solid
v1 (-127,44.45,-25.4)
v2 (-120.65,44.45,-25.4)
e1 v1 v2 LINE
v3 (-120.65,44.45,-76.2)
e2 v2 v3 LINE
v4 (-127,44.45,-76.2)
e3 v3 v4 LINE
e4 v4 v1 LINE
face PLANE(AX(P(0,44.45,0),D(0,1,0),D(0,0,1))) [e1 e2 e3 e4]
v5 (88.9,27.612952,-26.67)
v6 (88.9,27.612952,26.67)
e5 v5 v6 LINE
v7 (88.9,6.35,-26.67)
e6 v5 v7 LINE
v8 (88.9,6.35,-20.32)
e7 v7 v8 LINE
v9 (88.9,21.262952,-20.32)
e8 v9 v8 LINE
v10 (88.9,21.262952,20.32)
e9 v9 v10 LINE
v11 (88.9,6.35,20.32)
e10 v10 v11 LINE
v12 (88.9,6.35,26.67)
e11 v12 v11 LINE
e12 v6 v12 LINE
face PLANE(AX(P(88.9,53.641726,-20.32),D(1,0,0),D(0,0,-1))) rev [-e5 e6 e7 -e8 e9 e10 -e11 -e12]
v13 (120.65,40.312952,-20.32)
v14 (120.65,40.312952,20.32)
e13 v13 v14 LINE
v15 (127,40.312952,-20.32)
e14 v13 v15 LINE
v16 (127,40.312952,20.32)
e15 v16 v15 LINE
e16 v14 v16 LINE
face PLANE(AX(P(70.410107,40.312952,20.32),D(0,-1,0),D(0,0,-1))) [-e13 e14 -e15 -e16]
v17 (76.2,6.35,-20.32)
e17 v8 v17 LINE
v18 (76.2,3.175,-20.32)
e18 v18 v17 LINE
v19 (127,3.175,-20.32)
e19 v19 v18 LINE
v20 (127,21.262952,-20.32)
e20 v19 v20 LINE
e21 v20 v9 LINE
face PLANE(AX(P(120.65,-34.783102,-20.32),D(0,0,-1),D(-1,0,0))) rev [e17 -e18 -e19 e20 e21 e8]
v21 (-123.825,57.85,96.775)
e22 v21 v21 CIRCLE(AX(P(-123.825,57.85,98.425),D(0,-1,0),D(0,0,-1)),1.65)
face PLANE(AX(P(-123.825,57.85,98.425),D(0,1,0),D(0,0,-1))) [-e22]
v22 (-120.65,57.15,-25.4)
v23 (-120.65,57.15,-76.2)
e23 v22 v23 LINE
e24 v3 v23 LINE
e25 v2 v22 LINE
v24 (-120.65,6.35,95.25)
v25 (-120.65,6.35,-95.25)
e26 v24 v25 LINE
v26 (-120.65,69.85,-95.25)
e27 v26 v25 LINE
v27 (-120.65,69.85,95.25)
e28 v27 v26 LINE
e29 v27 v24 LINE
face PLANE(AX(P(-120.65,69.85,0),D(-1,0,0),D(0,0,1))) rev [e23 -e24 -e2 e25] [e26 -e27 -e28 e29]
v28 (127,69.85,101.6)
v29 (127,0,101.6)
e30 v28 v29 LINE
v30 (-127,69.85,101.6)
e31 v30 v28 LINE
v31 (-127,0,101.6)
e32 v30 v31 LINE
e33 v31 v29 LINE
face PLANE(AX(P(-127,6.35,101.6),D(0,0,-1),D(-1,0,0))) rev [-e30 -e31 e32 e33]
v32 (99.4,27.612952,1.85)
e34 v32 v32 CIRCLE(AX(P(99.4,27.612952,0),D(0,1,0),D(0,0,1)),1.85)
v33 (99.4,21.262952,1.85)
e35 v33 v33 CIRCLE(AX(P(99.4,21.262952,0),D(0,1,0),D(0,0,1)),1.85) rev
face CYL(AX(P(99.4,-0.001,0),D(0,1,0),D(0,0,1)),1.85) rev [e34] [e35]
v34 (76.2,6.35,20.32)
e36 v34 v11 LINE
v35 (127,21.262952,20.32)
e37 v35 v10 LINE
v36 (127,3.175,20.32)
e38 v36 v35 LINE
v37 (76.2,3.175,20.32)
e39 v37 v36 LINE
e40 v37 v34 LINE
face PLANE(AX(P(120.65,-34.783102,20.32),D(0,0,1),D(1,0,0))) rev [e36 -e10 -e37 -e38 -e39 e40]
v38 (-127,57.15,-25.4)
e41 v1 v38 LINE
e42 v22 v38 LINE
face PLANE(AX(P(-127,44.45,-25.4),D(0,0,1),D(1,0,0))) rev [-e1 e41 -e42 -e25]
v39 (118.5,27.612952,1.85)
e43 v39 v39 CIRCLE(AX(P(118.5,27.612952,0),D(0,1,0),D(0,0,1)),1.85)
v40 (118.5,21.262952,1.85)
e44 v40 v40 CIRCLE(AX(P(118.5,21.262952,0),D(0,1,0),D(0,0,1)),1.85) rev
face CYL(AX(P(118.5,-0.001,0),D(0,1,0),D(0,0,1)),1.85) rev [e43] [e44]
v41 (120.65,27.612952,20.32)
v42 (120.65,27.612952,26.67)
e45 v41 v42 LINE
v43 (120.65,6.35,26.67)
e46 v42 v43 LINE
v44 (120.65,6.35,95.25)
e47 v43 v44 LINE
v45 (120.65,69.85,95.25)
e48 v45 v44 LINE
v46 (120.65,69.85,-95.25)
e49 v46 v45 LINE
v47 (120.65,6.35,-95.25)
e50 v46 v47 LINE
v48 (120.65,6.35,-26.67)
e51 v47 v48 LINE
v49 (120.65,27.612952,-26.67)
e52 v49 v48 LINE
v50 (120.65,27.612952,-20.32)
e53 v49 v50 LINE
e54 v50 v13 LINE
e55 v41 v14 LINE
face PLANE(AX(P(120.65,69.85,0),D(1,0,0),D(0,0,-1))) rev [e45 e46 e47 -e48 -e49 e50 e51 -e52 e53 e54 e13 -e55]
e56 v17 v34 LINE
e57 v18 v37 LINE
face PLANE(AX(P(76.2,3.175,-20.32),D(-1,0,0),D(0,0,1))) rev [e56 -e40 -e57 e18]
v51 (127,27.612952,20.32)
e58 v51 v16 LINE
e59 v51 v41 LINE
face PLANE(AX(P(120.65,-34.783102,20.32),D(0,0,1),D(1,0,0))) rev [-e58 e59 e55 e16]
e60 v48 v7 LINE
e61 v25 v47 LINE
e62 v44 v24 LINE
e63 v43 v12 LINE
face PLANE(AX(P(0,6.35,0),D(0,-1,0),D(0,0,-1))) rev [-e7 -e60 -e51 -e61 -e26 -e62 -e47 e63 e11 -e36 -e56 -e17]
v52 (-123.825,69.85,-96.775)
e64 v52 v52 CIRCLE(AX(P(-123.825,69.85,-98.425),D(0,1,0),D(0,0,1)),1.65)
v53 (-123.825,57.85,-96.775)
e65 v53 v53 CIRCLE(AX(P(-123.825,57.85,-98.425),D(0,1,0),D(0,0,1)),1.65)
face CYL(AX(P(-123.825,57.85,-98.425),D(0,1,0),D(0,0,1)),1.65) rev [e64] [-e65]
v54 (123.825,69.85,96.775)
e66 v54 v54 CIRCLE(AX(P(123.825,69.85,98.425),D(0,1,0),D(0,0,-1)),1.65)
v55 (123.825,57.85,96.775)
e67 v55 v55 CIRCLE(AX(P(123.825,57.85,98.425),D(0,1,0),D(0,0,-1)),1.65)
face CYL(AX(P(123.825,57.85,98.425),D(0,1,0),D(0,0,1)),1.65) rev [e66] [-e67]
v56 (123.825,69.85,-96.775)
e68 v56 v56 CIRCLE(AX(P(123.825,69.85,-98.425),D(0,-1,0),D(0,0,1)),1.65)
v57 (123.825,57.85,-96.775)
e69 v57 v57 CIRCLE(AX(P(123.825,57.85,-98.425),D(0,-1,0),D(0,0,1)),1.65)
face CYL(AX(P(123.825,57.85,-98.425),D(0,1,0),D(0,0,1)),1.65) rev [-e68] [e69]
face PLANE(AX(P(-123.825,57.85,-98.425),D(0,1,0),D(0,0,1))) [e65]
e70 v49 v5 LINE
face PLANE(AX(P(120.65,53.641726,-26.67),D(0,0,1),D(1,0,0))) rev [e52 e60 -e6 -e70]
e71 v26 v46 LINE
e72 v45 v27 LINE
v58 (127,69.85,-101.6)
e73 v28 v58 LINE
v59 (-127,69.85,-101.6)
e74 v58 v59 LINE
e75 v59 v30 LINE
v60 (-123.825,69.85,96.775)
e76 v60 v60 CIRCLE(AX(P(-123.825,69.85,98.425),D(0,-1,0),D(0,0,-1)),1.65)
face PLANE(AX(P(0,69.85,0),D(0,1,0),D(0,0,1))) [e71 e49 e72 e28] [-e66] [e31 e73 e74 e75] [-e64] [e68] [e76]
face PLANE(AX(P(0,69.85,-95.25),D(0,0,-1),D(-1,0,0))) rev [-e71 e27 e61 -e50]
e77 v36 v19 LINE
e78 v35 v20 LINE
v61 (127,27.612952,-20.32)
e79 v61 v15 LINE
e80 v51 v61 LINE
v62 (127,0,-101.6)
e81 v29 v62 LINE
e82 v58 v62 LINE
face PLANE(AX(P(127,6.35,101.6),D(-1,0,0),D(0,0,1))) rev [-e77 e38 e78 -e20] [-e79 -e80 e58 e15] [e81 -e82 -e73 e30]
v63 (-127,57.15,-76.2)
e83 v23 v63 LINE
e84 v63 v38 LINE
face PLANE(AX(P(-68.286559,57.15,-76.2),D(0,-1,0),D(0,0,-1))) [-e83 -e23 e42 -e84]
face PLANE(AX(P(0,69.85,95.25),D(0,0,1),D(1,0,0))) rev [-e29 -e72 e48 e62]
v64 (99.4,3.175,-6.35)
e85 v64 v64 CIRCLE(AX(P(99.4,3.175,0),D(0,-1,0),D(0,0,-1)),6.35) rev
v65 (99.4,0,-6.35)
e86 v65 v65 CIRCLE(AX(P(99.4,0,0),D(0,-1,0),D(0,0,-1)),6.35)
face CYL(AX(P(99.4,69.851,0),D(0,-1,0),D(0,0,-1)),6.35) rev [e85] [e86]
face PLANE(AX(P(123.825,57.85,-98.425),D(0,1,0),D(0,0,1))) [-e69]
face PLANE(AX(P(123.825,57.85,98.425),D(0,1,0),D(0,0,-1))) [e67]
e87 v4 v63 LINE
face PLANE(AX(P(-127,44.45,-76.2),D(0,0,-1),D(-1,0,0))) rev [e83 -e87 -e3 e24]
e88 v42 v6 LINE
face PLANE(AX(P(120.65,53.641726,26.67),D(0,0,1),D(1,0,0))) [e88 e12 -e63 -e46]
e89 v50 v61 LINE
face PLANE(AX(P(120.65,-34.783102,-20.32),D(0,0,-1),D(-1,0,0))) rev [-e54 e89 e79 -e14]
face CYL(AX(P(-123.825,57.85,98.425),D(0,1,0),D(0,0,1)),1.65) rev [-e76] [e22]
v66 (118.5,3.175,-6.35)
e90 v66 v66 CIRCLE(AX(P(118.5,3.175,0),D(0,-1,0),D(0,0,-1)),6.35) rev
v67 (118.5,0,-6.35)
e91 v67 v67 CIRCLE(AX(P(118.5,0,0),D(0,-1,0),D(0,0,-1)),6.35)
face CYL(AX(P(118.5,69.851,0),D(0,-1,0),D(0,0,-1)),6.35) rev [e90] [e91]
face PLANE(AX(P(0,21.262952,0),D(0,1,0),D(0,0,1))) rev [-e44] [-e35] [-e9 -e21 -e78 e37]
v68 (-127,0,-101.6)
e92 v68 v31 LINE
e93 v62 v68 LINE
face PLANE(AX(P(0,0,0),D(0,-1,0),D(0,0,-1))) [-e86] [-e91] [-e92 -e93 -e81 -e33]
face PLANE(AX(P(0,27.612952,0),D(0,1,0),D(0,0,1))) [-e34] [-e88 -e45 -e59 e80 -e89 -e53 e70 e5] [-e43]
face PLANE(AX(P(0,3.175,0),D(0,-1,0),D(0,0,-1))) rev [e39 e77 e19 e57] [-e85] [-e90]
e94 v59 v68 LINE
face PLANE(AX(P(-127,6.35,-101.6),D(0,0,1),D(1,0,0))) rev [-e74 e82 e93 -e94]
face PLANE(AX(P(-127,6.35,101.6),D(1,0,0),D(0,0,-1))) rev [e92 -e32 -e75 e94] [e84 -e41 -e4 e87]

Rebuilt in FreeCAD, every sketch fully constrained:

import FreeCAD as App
import Part
import Sketcher
Q = App.Units.Quantity

doc = App.newDocument("Part")
params = doc.addObject("Spreadsheet::Sheet", "Params")
for row, (alias, value) in enumerate([
    ("sketch1_width", "10 in"),
    ("sketch1_height", "8 in"),
    ("pad1_length", "0.25 in"),
    ("sketch2_width", "10 in"),
    ("sketch2_height", "8 in"),
    ("sketch2_width2", "9.5 in"),
    ("sketch2_height2", "7.5 in"),
    ("pad2_length", "2.5 in"),
    ("sketch3_height", "1.6 in"),
    ("sketch3_width", "0.25 in"),
    ("pocket1_length", "2.5 in"),
    ("sketch4_width", "2 in"),
    ("sketch4_height", "1.6 in"),
    ("pocket2_length", "0.125 in"),
    ("sketch5_width", "1.25 in"),
    ("sketch5_height", "0.25 in"),
    ("pad3_length", "14.912952 mm"),
    ("sketch6_width", "1.5 in"),
    ("sketch6_height", "1.05 in"),
    ("pad4_length", "0.25 in"),
    ("sketch9_height", "2 in"),
    ("sketch9_width", "0.25 in"),
    ("pocket5_length", "1 in"),
    ("sketch10_diameter", "0.5 in"),
    ("sketch11_diameter", "0.5 in"),
    ("sketch12_height", "1.6 in"),
    ("pad5_length", "0.25 in"),
    ("sketch13_height", "2 in"),
    ("sketch13_width", "0.5 in"),
    ("pad6_length", "0.25 in"),
    ("pocket8_length", "12 mm"),
    ("pocket9_length", "12 mm"),
], start=1):
    params.set(f"A{row}", alias)
    params.set(f"B{row}", "=" + value)
    params.setAlias(f"B{row}", alias)

body = doc.addObject("PartDesign::Body", "Body")

sketch1 = body.newObject("Sketcher::SketchObject", "Sketch")
sketch1.AttachmentSupport = (doc.getObject("XZ_Plane"), [""])
sketch1.MapMode = "FlatFace"
sketch1.addGeometry(Part.LineSegment(App.Vector(-127, -102, 0), App.Vector(-127, 102, 0)), False)
sketch1.addGeometry(Part.LineSegment(App.Vector(-127, 102, 0), App.Vector(127, 102, 0)), False)
sketch1.addGeometry(Part.LineSegment(App.Vector(127, 102, 0), App.Vector(127, -102, 0)), False)
sketch1.addGeometry(Part.LineSegment(App.Vector(127, -102, 0), App.Vector(-127, -102, 0)), False)
sketch1.addConstraint(Sketcher.Constraint("Coincident", 0, 2, 1, 1))
sketch1.addConstraint(Sketcher.Constraint("Coincident", 1, 2, 2, 1))
sketch1.addConstraint(Sketcher.Constraint("Coincident", 2, 2, 3, 1))
sketch1.addConstraint(Sketcher.Constraint("Coincident", 3, 2, 0, 1))
sketch1.addConstraint(Sketcher.Constraint("Vertical", 0))
sketch1.addConstraint(Sketcher.Constraint("Horizontal", 1))
sketch1.addConstraint(Sketcher.Constraint("Vertical", 2))
sketch1.addConstraint(Sketcher.Constraint("Horizontal", 3))
sketch1.addConstraint(Sketcher.Constraint("Symmetric", 0, 2, 2, 2, -1, 1))
sketch1.addConstraint(Sketcher.Constraint("DistanceX", 1, 1, 1, 2, Q("10 in")))
sketch1.addConstraint(Sketcher.Constraint("DistanceY", 0, 1, 0, 2, Q("8 in")))
sketch1.setExpression("Constraints[9]", "Params.sketch1_width")
sketch1.setExpression("Constraints[10]", "Params.sketch1_height")
pad1 = body.newObject("PartDesign::Pad", "Pad")
pad1.Profile = sketch1
pad1.setExpression("Length", "Params.pad1_length")
pad1.Reversed = True

sketch2 = body.newObject("Sketcher::SketchObject", "Sketch001")
sketch2.AttachmentSupport = (doc.getObject("XZ_Plane"), [""])
sketch2.MapMode = "FlatFace"
sketch2.AttachmentOffset = App.Placement(App.Vector(0, 0, -0.25 * 25.4), App.Rotation())
sketch2.addGeometry(Part.LineSegment(App.Vector(127, -102, 0), App.Vector(-127, -102, 0)), False)
sketch2.addGeometry(Part.LineSegment(App.Vector(-127, -102, 0), App.Vector(-127, 102, 0)), False)
sketch2.addGeometry(Part.LineSegment(App.Vector(-127, 102, 0), App.Vector(127, 102, 0)), False)
sketch2.addGeometry(Part.LineSegment(App.Vector(127, 102, 0), App.Vector(127, -102, 0)), False)
sketch2.addGeometry(Part.LineSegment(App.Vector(-121, 95, 0), App.Vector(-121, -95, 0)), False)
sketch2.addGeometry(Part.LineSegment(App.Vector(-121, -95, 0), App.Vector(121, -95, 0)), False)
sketch2.addGeometry(Part.LineSegment(App.Vector(121, -95, 0), App.Vector(121, 95, 0)), False)
sketch2.addGeometry(Part.LineSegment(App.Vector(121, 95, 0), App.Vector(-121, 95, 0)), False)
sketch2.addConstraint(Sketcher.Constraint("Coincident", 0, 2, 1, 1))
sketch2.addConstraint(Sketcher.Constraint("Coincident", 1, 2, 2, 1))
sketch2.addConstraint(Sketcher.Constraint("Coincident", 2, 2, 3, 1))
sketch2.addConstraint(Sketcher.Constraint("Coincident", 3, 2, 0, 1))
sketch2.addConstraint(Sketcher.Constraint("Coincident", 4, 2, 5, 1))
sketch2.addConstraint(Sketcher.Constraint("Coincident", 5, 2, 6, 1))
sketch2.addConstraint(Sketcher.Constraint("Coincident", 6, 2, 7, 1))
sketch2.addConstraint(Sketcher.Constraint("Coincident", 7, 2, 4, 1))
sketch2.addConstraint(Sketcher.Constraint("Horizontal", 0))
sketch2.addConstraint(Sketcher.Constraint("Vertical", 1))
sketch2.addConstraint(Sketcher.Constraint("Horizontal", 2))
sketch2.addConstraint(Sketcher.Constraint("Vertical", 3))
sketch2.addConstraint(Sketcher.Constraint("Vertical", 4))
sketch2.addConstraint(Sketcher.Constraint("Horizontal", 5))
sketch2.addConstraint(Sketcher.Constraint("Vertical", 6))
sketch2.addConstraint(Sketcher.Constraint("Horizontal", 7))
sketch2.addConstraint(Sketcher.Constraint("Symmetric", 0, 2, 2, 2, -1, 1))
sketch2.addConstraint(Sketcher.Constraint("Symmetric", 4, 2, 6, 2, -1, 1))
sketch2.addConstraint(Sketcher.Constraint("DistanceX", 0, 2, 0, 1, Q("10 in")))
sketch2.addConstraint(Sketcher.Constraint("DistanceY", 1, 1, 1, 2, Q("8 in")))
sketch2.addConstraint(Sketcher.Constraint("DistanceX", 5, 1, 5, 2, Q("9.5 in")))
sketch2.addConstraint(Sketcher.Constraint("DistanceY", 4, 2, 4, 1, Q("7.5 in")))
sketch2.setExpression("Constraints[18]", "Params.sketch2_width")
sketch2.setExpression("Constraints[19]", "Params.sketch2_height")
sketch2.setExpression("Constraints[20]", "Params.sketch2_width2")
sketch2.setExpression("Constraints[21]", "Params.sketch2_height2")
pad2 = body.newObject("PartDesign::Pad", "Pad001")
pad2.Profile = sketch2
pad2.setExpression("Length", "Params.pad2_length")
pad2.Reversed = True

sketch3 = body.newObject("Sketcher::SketchObject", "Sketch002")
sketch3.AttachmentSupport = (doc.getObject("XZ_Plane"), [""])
sketch3.MapMode = "FlatFace"
sketch3.AttachmentOffset = App.Placement(App.Vector(0, 0, -2.75 * 25.4), App.Rotation())
sketch3.addGeometry(Part.LineSegment(App.Vector(121, -20, 0), App.Vector(121, 20, 0)), False)
sketch3.addGeometry(Part.LineSegment(App.Vector(121, 20, 0), App.Vector(127, 20, 0)), False)
sketch3.addGeometry(Part.LineSegment(App.Vector(127, 20, 0), App.Vector(127, -20, 0)), False)
sketch3.addGeometry(Part.LineSegment(App.Vector(127, -20, 0), App.Vector(121, -20, 0)), False)
sketch3.addConstraint(Sketcher.Constraint("Coincident", 0, 2, 1, 1))
sketch3.addConstraint(Sketcher.Constraint("Coincident", 1, 2, 2, 1))
sketch3.addConstraint(Sketcher.Constraint("Coincident", 2, 2, 3, 1))
sketch3.addConstraint(Sketcher.Constraint("Coincident", 3, 2, 0, 1))
sketch3.addConstraint(Sketcher.Constraint("Vertical", 0))
sketch3.addConstraint(Sketcher.Constraint("Horizontal", 1))
sketch3.addConstraint(Sketcher.Constraint("Vertical", 2))
sketch3.addConstraint(Sketcher.Constraint("Horizontal", 3))
sketch3.addConstraint(Sketcher.Constraint("DistanceY", 0, 1, 0, 2, Q("1.6 in")))
sketch3.addConstraint(Sketcher.Constraint("DistanceX", -1, 1, 1, 2, Q("5 in")))
sketch3.addConstraint(Sketcher.Constraint("DistanceX", 1, 1, 1, 2, Q("0.25 in")))
sketch3.addConstraint(Sketcher.Constraint("DistanceY", -1, 1, 0, 2, Q("0.8 in")))
sketch3.setExpression("Constraints[8]", "Params.sketch3_height")
sketch3.setExpression("Constraints[10]", "Params.sketch3_width")
pocket1 = body.newObject("PartDesign::Pocket", "Pocket")
pocket1.Profile = sketch3
pocket1.setExpression("Length", "Params.pocket1_length")
pocket1.Reversed = True

sketch4 = body.newObject("Sketcher::SketchObject", "Sketch003")
sketch4.AttachmentSupport = (doc.getObject("XZ_Plane"), [""])
sketch4.MapMode = "FlatFace"
sketch4.AttachmentOffset = App.Placement(App.Vector(0, 0, -0.25 * 25.4), App.Rotation())
sketch4.addGeometry(Part.LineSegment(App.Vector(76, -20, 0), App.Vector(76, 20, 0)), False)
sketch4.addGeometry(Part.LineSegment(App.Vector(76, 20, 0), App.Vector(127, 20, 0)), False)
sketch4.addGeometry(Part.LineSegment(App.Vector(127, 20, 0), App.Vector(127, -20, 0)), False)
sketch4.addGeometry(Part.LineSegment(App.Vector(127, -20, 0), App.Vector(76, -20, 0)), False)
sketch4.addConstraint(Sketcher.Constraint("Coincident", 0, 2, 1, 1))
sketch4.addConstraint(Sketcher.Constraint("Coincident", 1, 2, 2, 1))
sketch4.addConstraint(Sketcher.Constraint("Coincident", 2, 2, 3, 1))
sketch4.addConstraint(Sketcher.Constraint("Coincident", 3, 2, 0, 1))
sketch4.addConstraint(Sketcher.Constraint("Vertical", 0))
sketch4.addConstraint(Sketcher.Constraint("Horizontal", 1))
sketch4.addConstraint(Sketcher.Constraint("Vertical", 2))
sketch4.addConstraint(Sketcher.Constraint("Horizontal", 3))
sketch4.addConstraint(Sketcher.Constraint("DistanceX", 1, 1, 1, 2, Q("2 in")))
sketch4.addConstraint(Sketcher.Constraint("DistanceY", 0, 1, 0, 2, Q("1.6 in")))
sketch4.addConstraint(Sketcher.Constraint("DistanceX", -1, 1, 0, 2, Q("3 in")))
sketch4.addConstraint(Sketcher.Constraint("DistanceY", -1, 1, 0, 2, Q("0.8 in")))
sketch4.setExpression("Constraints[8]", "Params.sketch4_width")
sketch4.setExpression("Constraints[9]", "Params.sketch4_height")
pocket2 = body.newObject("PartDesign::Pocket", "Pocket001")
pocket2.Profile = sketch4
pocket2.setExpression("Length", "Params.pocket2_length")
pocket2.Reversed = True

sketch5 = body.newObject("Sketcher::SketchObject", "Sketch004")
sketch5.AttachmentSupport = (doc.getObject("XZ_Plane"), [""])
sketch5.MapMode = "FlatFace"
sketch5.AttachmentOffset = App.Placement(App.Vector(0, 0, -0.25 * 25.4), App.Rotation())
sketch5.addGeometry(Part.LineSegment(App.Vector(89, -27, 0), App.Vector(89, -20, 0)), False)
sketch5.addGeometry(Part.LineSegment(App.Vector(89, -20, 0), App.Vector(121, -20, 0)), False)
sketch5.addGeometry(Part.LineSegment(App.Vector(121, -20, 0), App.Vector(121, -27, 0)), False)
sketch5.addGeometry(Part.LineSegment(App.Vector(121, -27, 0), App.Vector(89, -27, 0)), False)
sketch5.addConstraint(Sketcher.Constraint("Coincident", 0, 2, 1, 1))
sketch5.addConstraint(Sketcher.Constraint("Coincident", 1, 2, 2, 1))
sketch5.addConstraint(Sketcher.Constraint("Coincident", 2, 2, 3, 1))
sketch5.addConstraint(Sketcher.Constraint("Coincident", 3, 2, 0, 1))
sketch5.addConstraint(Sketcher.Constraint("Vertical", 0))
sketch5.addConstraint(Sketcher.Constraint("Horizontal", 1))
sketch5.addConstraint(Sketcher.Constraint("Vertical", 2))
sketch5.addConstraint(Sketcher.Constraint("Horizontal", 3))
sketch5.addConstraint(Sketcher.Constraint("DistanceX", 1, 1, 1, 2, Q("1.25 in")))
sketch5.addConstraint(Sketcher.Constraint("DistanceY", 0, 1, 0, 2, Q("0.25 in")))
sketch5.addConstraint(Sketcher.Constraint("DistanceX", -1, 1, 0, 2, Q("3.5 in")))
sketch5.addConstraint(Sketcher.Constraint("DistanceY", 0, 2, -1, 1, Q("0.8 in")))
sketch5.setExpression("Constraints[8]", "Params.sketch5_width")
sketch5.setExpression("Constraints[9]", "Params.sketch5_height")
pad3 = body.newObject("PartDesign::Pad", "Pad002")
pad3.Profile = sketch5
pad3.setExpression("Length", "Params.pad3_length")
pad3.Reversed = True

sketch6 = body.newObject("Sketcher::SketchObject", "Sketch005")
sketch6.AttachmentSupport = (doc.getObject("XZ_Plane"), [""])
sketch6.MapMode = "FlatFace"
sketch6.AttachmentOffset = App.Placement(App.Vector(0, 0, -21.262952), App.Rotation())
sketch6.addGeometry(Part.LineSegment(App.Vector(89, -27, 0), App.Vector(89, 0, 0)), False)
sketch6.addGeometry(Part.LineSegment(App.Vector(89, 0, 0), App.Vector(127, 0, 0)), False)
sketch6.addGeometry(Part.LineSegment(App.Vector(127, 0, 0), App.Vector(127, -27, 0)), False)
sketch6.addGeometry(Part.LineSegment(App.Vector(127, -27, 0), App.Vector(89, -27, 0)), False)
sketch6.addConstraint(Sketcher.Constraint("Coincident", 0, 2, 1, 1))
sketch6.addConstraint(Sketcher.Constraint("Coincident", 1, 2, 2, 1))
sketch6.addConstraint(Sketcher.Constraint("Coincident", 2, 2, 3, 1))
sketch6.addConstraint(Sketcher.Constraint("Coincident", 3, 2, 0, 1))
sketch6.addConstraint(Sketcher.Constraint("Vertical", 0))
sketch6.addConstraint(Sketcher.Constraint("Horizontal", 1))
sketch6.addConstraint(Sketcher.Constraint("Vertical", 2))
sketch6.addConstraint(Sketcher.Constraint("Horizontal", 3))
sketch6.addConstraint(Sketcher.Constraint("PointOnObject", 0, 2, -1))
sketch6.addConstraint(Sketcher.Constraint("DistanceX", 1, 1, 1, 2, Q("1.5 in")))
sketch6.addConstraint(Sketcher.Constraint("DistanceX", -1, 1, 1, 2, Q("5 in")))
sketch6.addConstraint(Sketcher.Constraint("DistanceY", 0, 1, 0, 2, Q("1.05 in")))
sketch6.setExpression("Constraints[9]", "Params.sketch6_width")
sketch6.setExpression("Constraints[11]", "Params.sketch6_height")
pad4 = body.newObject("PartDesign::Pad", "Pad003")
pad4.Profile = sketch6
pad4.setExpression("Length", "Params.pad4_length")
pad4.Reversed = True
doc.recompute()

mirrored = body.newObject("PartDesign::Mirrored", "Mirrored")
mirrored.Originals = [pad3, pad4]
mirrored.MirrorPlane = (doc.getObject("XY_Plane"), [""])
body.Tip = mirrored

sketch7 = body.newObject("Sketcher::SketchObject", "Sketch006")
sketch7.AttachmentSupport = (doc.getObject("XZ_Plane"), [""])
sketch7.MapMode = "FlatFace"
sketch7.AttachmentOffset = App.Placement(App.Vector(0, 0, -27.612952), App.Rotation())
sketch7.addGeometry(Part.Circle(App.Vector(99.4, 0, 0), App.Vector(0, 0, 1), 1.9), False)
sketch7.addConstraint(Sketcher.Constraint("PointOnObject", 0, 3, -1))
sketch7.addConstraint(Sketcher.Constraint("Diameter", 0, Q("3.7 mm")))
sketch7.addConstraint(Sketcher.Constraint("DistanceX", -1, 1, 0, 3, Q("99.4 mm")))
pocket3 = body.newObject("PartDesign::Pocket", "Pocket002")
pocket3.Profile = sketch7
pocket3.Type = "UpToFirst"
pocket3.Reversed = True

sketch8 = body.newObject("Sketcher::SketchObject", "Sketch007")
sketch8.AttachmentSupport = (doc.getObject("XZ_Plane"), [""])
sketch8.MapMode = "FlatFace"
sketch8.AttachmentOffset = App.Placement(App.Vector(0, 0, -27.612952), App.Rotation())
sketch8.addGeometry(Part.Circle(App.Vector(118.5, 0, 0), App.Vector(0, 0, 1), 1.9), False)
sketch8.addConstraint(Sketcher.Constraint("PointOnObject", 0, 3, -1))
sketch8.addConstraint(Sketcher.Constraint("Diameter", 0, Q("3.7 mm")))
sketch8.addConstraint(Sketcher.Constraint("DistanceX", -1, 1, 0, 3, Q("118.5 mm")))
pocket4 = body.newObject("PartDesign::Pocket", "Pocket003")
pocket4.Profile = sketch8
pocket4.Type = "UpToFirst"
pocket4.Reversed = True

sketch9 = body.newObject("Sketcher::SketchObject", "Sketch008")
sketch9.AttachmentSupport = (doc.getObject("XZ_Plane"), [""])
sketch9.MapMode = "FlatFace"
sketch9.AttachmentOffset = App.Placement(App.Vector(0, 0, -2.75 * 25.4), App.Rotation())
sketch9.addGeometry(Part.LineSegment(App.Vector(-127, -76, 0), App.Vector(-127, -25, 0)), False)
sketch9.addGeometry(Part.LineSegment(App.Vector(-127, -25, 0), App.Vector(-121, -25, 0)), False)
sketch9.addGeometry(Part.LineSegment(App.Vector(-121, -25, 0), App.Vector(-121, -76, 0)), False)
sketch9.addGeometry(Part.LineSegment(App.Vector(-121, -76, 0), App.Vector(-127, -76, 0)), False)
sketch9.addConstraint(Sketcher.Constraint("Coincident", 0, 2, 1, 1))
sketch9.addConstraint(Sketcher.Constraint("Coincident", 1, 2, 2, 1))
sketch9.addConstraint(Sketcher.Constraint("Coincident", 2, 2, 3, 1))
sketch9.addConstraint(Sketcher.Constraint("Coincident", 3, 2, 0, 1))
sketch9.addConstraint(Sketcher.Constraint("Vertical", 0))
sketch9.addConstraint(Sketcher.Constraint("Horizontal", 1))
sketch9.addConstraint(Sketcher.Constraint("Vertical", 2))
sketch9.addConstraint(Sketcher.Constraint("Horizontal", 3))
sketch9.addConstraint(Sketcher.Constraint("DistanceY", 0, 1, 0, 2, Q("2 in")))
sketch9.addConstraint(Sketcher.Constraint("DistanceX", 0, 2, -1, 1, Q("5 in")))
sketch9.addConstraint(Sketcher.Constraint("DistanceY", 0, 2, -1, 1, Q("1 in")))
sketch9.addConstraint(Sketcher.Constraint("DistanceX", 1, 1, 1, 2, Q("0.25 in")))
sketch9.setExpression("Constraints[8]", "Params.sketch9_height")
sketch9.setExpression("Constraints[11]", "Params.sketch9_width")
pocket5 = body.newObject("PartDesign::Pocket", "Pocket004")
pocket5.Profile = sketch9
pocket5.setExpression("Length", "Params.pocket5_length")
pocket5.Reversed = True

sketch10 = body.newObject("Sketcher::SketchObject", "Sketch009")
sketch10.AttachmentSupport = (doc.getObject("XZ_Plane"), [""])
sketch10.MapMode = "FlatFace"
sketch10.addGeometry(Part.Circle(App.Vector(99, 0, 0), App.Vector(0, 0, 1), 6), False)
sketch10.addConstraint(Sketcher.Constraint("PointOnObject", 0, 3, -1))
sketch10.addConstraint(Sketcher.Constraint("Diameter", 0, Q("0.5 in")))
sketch10.addConstraint(Sketcher.Constraint("DistanceX", -1, 1, 0, 3, Q("99.4 mm")))
sketch10.setExpression("Constraints[1]", "Params.sketch10_diameter")
pocket6 = body.newObject("PartDesign::Pocket", "Pocket005")
pocket6.Profile = sketch10
pocket6.Type = "UpToFirst"

sketch11 = body.newObject("Sketcher::SketchObject", "Sketch010")
sketch11.AttachmentSupport = (doc.getObject("XZ_Plane"), [""])
sketch11.MapMode = "FlatFace"
sketch11.addGeometry(Part.Circle(App.Vector(118, 0, 0), App.Vector(0, 0, 1), 6), False)
sketch11.addConstraint(Sketcher.Constraint("PointOnObject", 0, 3, -1))
sketch11.addConstraint(Sketcher.Constraint("Diameter", 0, Q("0.5 in")))
sketch11.addConstraint(Sketcher.Constraint("DistanceX", -1, 1, 0, 3, Q("118.5 mm")))
sketch11.setExpression("Constraints[1]", "Params.sketch11_diameter")
pocket7 = body.newObject("PartDesign::Pocket", "Pocket006")
pocket7.Profile = sketch11
pocket7.Type = "UpToFirst"

sketch12 = body.newObject("Sketcher::SketchObject", "Sketch011")
sketch12.AttachmentSupport = (doc.getObject("YZ_Plane"), [""])
sketch12.MapMode = "FlatFace"
sketch12.AttachmentOffset = App.Placement(App.Vector(0, 0, 5 * 25.4), App.Rotation())
sketch12.addGeometry(Part.LineSegment(App.Vector(70, 20, 0), App.Vector(40, 20, 0)), False)
sketch12.addGeometry(Part.LineSegment(App.Vector(40, 20, 0), App.Vector(40, -20, 0)), False)
sketch12.addGeometry(Part.LineSegment(App.Vector(40, -20, 0), App.Vector(70, -20, 0)), False)
sketch12.addGeometry(Part.LineSegment(App.Vector(70, -20, 0), App.Vector(70, 20, 0)), False)
sketch12.addConstraint(Sketcher.Constraint("Coincident", 0, 2, 1, 1))
sketch12.addConstraint(Sketcher.Constraint("Coincident", 1, 2, 2, 1))
sketch12.addConstraint(Sketcher.Constraint("Coincident", 2, 2, 3, 1))
sketch12.addConstraint(Sketcher.Constraint("Coincident", 3, 2, 0, 1))
sketch12.addConstraint(Sketcher.Constraint("Horizontal", 0))
sketch12.addConstraint(Sketcher.Constraint("Vertical", 1))
sketch12.addConstraint(Sketcher.Constraint("Horizontal", 2))
sketch12.addConstraint(Sketcher.Constraint("Vertical", 3))
sketch12.addConstraint(Sketcher.Constraint("DistanceY", 1, 2, 1, 1, Q("1.6 in")))
sketch12.addConstraint(Sketcher.Constraint("DistanceY", -1, 1, 0, 2, Q("0.8 in")))
sketch12.addConstraint(Sketcher.Constraint("DistanceX", -1, 1, 2, 2, Q("2.75 in")))
sketch12.addConstraint(Sketcher.Constraint("DistanceX", 0, 2, 0, 1, Q("29.537048 mm")))
sketch12.setExpression("Constraints[8]", "Params.sketch12_height")
pad5 = body.newObject("PartDesign::Pad", "Pad004")
pad5.Profile = sketch12
pad5.setExpression("Length", "Params.pad5_length")
pad5.Reversed = True

sketch13 = body.newObject("Sketcher::SketchObject", "Sketch012")
sketch13.AttachmentSupport = (doc.getObject("YZ_Plane"), [""])
sketch13.MapMode = "FlatFace"
sketch13.AttachmentOffset = App.Placement(App.Vector(0, 0, -5 * 25.4), App.Rotation())
sketch13.addGeometry(Part.LineSegment(App.Vector(70, -76, 0), App.Vector(57, -76, 0)), False)
sketch13.addGeometry(Part.LineSegment(App.Vector(57, -76, 0), App.Vector(57, -25, 0)), False)
sketch13.addGeometry(Part.LineSegment(App.Vector(57, -25, 0), App.Vector(70, -25, 0)), False)
sketch13.addGeometry(Part.LineSegment(App.Vector(70, -25, 0), App.Vector(70, -76, 0)), False)
sketch13.addConstraint(Sketcher.Constraint("Coincident", 0, 2, 1, 1))
sketch13.addConstraint(Sketcher.Constraint("Coincident", 1, 2, 2, 1))
sketch13.addConstraint(Sketcher.Constraint("Coincident", 2, 2, 3, 1))
sketch13.addConstraint(Sketcher.Constraint("Coincident", 3, 2, 0, 1))
sketch13.addConstraint(Sketcher.Constraint("Horizontal", 0))
sketch13.addConstraint(Sketcher.Constraint("Vertical", 1))
sketch13.addConstraint(Sketcher.Constraint("Horizontal", 2))
sketch13.addConstraint(Sketcher.Constraint("Vertical", 3))
sketch13.addConstraint(Sketcher.Constraint("DistanceY", 1, 1, 1, 2, Q("2 in")))
sketch13.addConstraint(Sketcher.Constraint("DistanceX", 0, 2, 0, 1, Q("0.5 in")))
sketch13.addConstraint(Sketcher.Constraint("DistanceY", 0, 2, -1, 1, Q("3 in")))
sketch13.addConstraint(Sketcher.Constraint("DistanceX", -1, 1, 0, 2, Q("2.25 in")))
sketch13.setExpression("Constraints[8]", "Params.sketch13_height")
sketch13.setExpression("Constraints[9]", "Params.sketch13_width")
pad6 = body.newObject("PartDesign::Pad", "Pad005")
pad6.Profile = sketch13
pad6.setExpression("Length", "Params.pad6_length")

sketch14 = body.newObject("Sketcher::SketchObject", "Sketch013")
sketch14.AttachmentSupport = (doc.getObject("XZ_Plane"), [""])
sketch14.MapMode = "FlatFace"
sketch14.AttachmentOffset = App.Placement(App.Vector(0, 0, -2.75 * 25.4), App.Rotation())
sketch14.addGeometry(Part.Circle(App.Vector(-123.8, -98.4, 0), App.Vector(0, 0, 1), 1.6), False)
sketch14.addConstraint(Sketcher.Constraint("Diameter", 0, Q("3.3 mm")))
sketch14.addConstraint(Sketcher.Constraint("DistanceX", 0, 3, -1, 1, Q("4.875 in")))
sketch14.addConstraint(Sketcher.Constraint("DistanceY", 0, 3, -1, 1, Q("3.875 in")))
pocket8 = body.newObject("PartDesign::Pocket", "Pocket007")
pocket8.Profile = sketch14
pocket8.setExpression("Length", "Params.pocket8_length")
pocket8.Reversed = True
doc.recompute()

mirrored2 = body.newObject("PartDesign::Mirrored", "Mirrored001")
mirrored2.Originals = [pocket8]
mirrored2.MirrorPlane = (doc.getObject("XY_Plane"), [""])
body.Tip = mirrored2
doc.recompute()

mirrored3 = body.newObject("PartDesign::Mirrored", "Mirrored002")
mirrored3.Originals = [pocket8]
mirrored3.MirrorPlane = (doc.getObject("YZ_Plane"), [""])
body.Tip = mirrored3

sketch15 = body.newObject("Sketcher::SketchObject", "Sketch014")
sketch15.AttachmentSupport = (doc.getObject("XZ_Plane"), [""])
sketch15.MapMode = "FlatFace"
sketch15.AttachmentOffset = App.Placement(App.Vector(0, 0, -2.75 * 25.4), App.Rotation())
sketch15.addGeometry(Part.Circle(App.Vector(123.8, 98.4, 0), App.Vector(0, 0, 1), 1.6), False)
sketch15.addConstraint(Sketcher.Constraint("Diameter", 0, Q("3.3 mm")))
sketch15.addConstraint(Sketcher.Constraint("DistanceX", -1, 1, 0, 3, Q("4.875 in")))
sketch15.addConstraint(Sketcher.Constraint("DistanceY", -1, 1, 0, 3, Q("3.875 in")))
pocket9 = body.newObject("PartDesign::Pocket", "Pocket008")
pocket9.Profile = sketch15
pocket9.setExpression("Length", "Params.pocket9_length")
pocket9.Reversed = True

doc.recompute()
